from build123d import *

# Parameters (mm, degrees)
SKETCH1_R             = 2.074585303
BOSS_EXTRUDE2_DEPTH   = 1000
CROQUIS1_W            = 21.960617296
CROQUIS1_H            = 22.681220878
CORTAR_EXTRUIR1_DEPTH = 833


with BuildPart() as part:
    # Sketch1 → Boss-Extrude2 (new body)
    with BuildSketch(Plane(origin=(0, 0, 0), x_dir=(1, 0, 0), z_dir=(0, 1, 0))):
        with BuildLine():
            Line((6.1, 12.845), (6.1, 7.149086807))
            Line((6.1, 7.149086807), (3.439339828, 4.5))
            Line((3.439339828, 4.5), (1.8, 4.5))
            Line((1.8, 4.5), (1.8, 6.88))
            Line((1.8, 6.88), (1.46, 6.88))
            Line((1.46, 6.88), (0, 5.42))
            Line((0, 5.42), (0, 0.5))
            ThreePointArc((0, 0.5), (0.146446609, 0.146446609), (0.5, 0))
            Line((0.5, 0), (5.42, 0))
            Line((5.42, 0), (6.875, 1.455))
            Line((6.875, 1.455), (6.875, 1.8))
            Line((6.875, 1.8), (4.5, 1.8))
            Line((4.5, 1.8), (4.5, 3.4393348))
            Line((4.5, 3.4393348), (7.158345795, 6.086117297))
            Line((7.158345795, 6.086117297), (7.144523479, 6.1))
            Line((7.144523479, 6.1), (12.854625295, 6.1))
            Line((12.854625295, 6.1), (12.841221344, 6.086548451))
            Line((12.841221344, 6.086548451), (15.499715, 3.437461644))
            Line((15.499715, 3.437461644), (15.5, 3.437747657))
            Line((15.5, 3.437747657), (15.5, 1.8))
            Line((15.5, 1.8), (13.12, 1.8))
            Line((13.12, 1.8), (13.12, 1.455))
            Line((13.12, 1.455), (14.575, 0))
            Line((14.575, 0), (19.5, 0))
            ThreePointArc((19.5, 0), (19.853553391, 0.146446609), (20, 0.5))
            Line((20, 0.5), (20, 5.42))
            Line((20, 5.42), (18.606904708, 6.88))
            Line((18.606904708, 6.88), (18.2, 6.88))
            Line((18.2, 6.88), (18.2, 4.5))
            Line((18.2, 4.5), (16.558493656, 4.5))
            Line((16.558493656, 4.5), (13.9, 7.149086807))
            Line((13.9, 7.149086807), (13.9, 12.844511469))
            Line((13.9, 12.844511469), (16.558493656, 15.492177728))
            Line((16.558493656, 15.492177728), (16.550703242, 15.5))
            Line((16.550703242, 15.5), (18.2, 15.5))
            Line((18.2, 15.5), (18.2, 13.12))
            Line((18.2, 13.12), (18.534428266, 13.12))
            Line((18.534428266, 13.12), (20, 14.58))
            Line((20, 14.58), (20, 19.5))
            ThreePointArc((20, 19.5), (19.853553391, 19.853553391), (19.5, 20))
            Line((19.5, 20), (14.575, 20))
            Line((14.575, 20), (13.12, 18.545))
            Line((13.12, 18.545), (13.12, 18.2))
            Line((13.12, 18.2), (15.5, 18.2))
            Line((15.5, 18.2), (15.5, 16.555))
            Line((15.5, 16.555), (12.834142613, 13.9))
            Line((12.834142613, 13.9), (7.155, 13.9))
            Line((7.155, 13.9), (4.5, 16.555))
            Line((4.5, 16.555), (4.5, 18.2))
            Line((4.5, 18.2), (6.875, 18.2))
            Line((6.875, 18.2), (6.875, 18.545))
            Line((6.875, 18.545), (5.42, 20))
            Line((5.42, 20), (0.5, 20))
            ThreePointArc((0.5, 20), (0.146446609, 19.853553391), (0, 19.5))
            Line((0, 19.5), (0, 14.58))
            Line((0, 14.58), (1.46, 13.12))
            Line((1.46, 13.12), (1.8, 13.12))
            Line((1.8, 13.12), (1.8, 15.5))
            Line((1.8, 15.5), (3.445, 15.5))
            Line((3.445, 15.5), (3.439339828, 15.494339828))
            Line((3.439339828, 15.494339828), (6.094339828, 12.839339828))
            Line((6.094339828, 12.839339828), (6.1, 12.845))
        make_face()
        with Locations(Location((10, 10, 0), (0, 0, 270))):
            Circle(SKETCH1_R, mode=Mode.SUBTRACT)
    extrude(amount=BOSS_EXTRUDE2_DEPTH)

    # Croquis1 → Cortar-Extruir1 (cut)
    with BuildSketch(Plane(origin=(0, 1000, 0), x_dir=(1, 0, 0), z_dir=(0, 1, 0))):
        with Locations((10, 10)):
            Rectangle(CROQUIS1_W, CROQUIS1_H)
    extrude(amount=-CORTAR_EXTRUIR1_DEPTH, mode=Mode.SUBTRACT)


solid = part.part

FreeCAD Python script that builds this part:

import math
import FreeCAD as App
import Part
import Sketcher

V = App.Vector
Q = App.Units.Quantity


def add_polygon(sketch, points):
    """Adds a closed chain of lines whose ends are joined by coincident constraints."""
    first, n = sketch.GeometryCount, len(points)
    for a, b in zip(points, points[1:] + points[:1]):
        sketch.addGeometry(Part.LineSegment(App.Vector(*a, 0), App.Vector(*b, 0)), False)
    for i in range(n):
        sketch.addConstraint(Sketcher.Constraint("Coincident", first + i, 2, first + (i + 1) % n, 1))

doc = App.newDocument("Part")
body = doc.addObject("PartDesign::Body", "Body")

# Sketch on XZ plane
sketch1 = body.newObject("Sketcher::SketchObject", "Sketch")
sketch1.AttachmentSupport = (doc.getObject("XZ_Plane"), [""])
sketch1.MapMode = "FlatFace"
sketch1.addGeometry([
    Part.LineSegment(V(6.1, -12.845, 0), V(6.1, -7.14909, 0)),  # 0
    Part.LineSegment(V(6.1, -7.14909, 0), V(3.43934, -4.5, 0)),  # 1
    Part.LineSegment(V(3.43934, -4.5, 0), V(1.8, -4.5, 0)),  # 2
    Part.LineSegment(V(1.8, -4.5, 0), V(1.8, -6.88, 0)),  # 3
    Part.LineSegment(V(1.8, -6.88, 0), V(1.46, -6.88, 0)),  # 4
    Part.LineSegment(V(1.46, -6.88, 0), V(0, -5.42, 0)),  # 5
    Part.LineSegment(V(0, -5.42, 0), V(0, -0.5, 0)),  # 6
    Part.ArcOfCircle(Part.Circle(V(0.5, -0.5, 0), V(0, 0, 1), 0.5), math.radians(90), math.radians(180)),  # 7
    Part.LineSegment(V(0.5, 0, 0), V(5.42, 0, 0)),  # 8
    Part.LineSegment(V(5.42, 0, 0), V(6.875, -1.455, 0)),  # 9
    Part.LineSegment(V(6.875, -1.455, 0), V(6.875, -1.8, 0)),  # 10
    Part.LineSegment(V(6.875, -1.8, 0), V(4.5, -1.8, 0)),  # 11
    Part.LineSegment(V(4.5, -1.8, 0), V(4.5, -3.43933, 0)),  # 12
    Part.LineSegment(V(4.5, -3.43933, 0), V(7.15835, -6.08612, 0)),  # 13
    Part.LineSegment(V(7.15835, -6.08612, 0), V(7.14452, -6.1, 0)),  # 14
    Part.LineSegment(V(7.14452, -6.1, 0), V(12.85463, -6.1, 0)),  # 15
    Part.LineSegment(V(12.85463, -6.1, 0), V(12.84122, -6.08655, 0)),  # 16
    Part.LineSegment(V(12.84122, -6.08655, 0), V(15.49972, -3.43746, 0)),  # 17
    Part.LineSegment(V(15.49972, -3.43746, 0), V(15.5, -3.43775, 0)),  # 18
    Part.LineSegment(V(15.5, -3.43775, 0), V(15.5, -1.8, 0)),  # 19
    Part.LineSegment(V(15.5, -1.8, 0), V(13.12, -1.8, 0)),  # 20
    Part.LineSegment(V(13.12, -1.8, 0), V(13.12, -1.455, 0)),  # 21
    Part.LineSegment(V(13.12, -1.455, 0), V(14.575, 0, 0)),  # 22
    Part.LineSegment(V(14.575, 0, 0), V(19.5, 0, 0)),  # 23
    Part.ArcOfCircle(Part.Circle(V(19.5, -0.5, 0), V(0, 0, 1), 0.5), math.radians(0), math.radians(90)),  # 24
    Part.LineSegment(V(20, -0.5, 0), V(20, -5.42, 0)),  # 25
    Part.LineSegment(V(20, -5.42, 0), V(18.6069, -6.88, 0)),  # 26
    Part.LineSegment(V(18.6069, -6.88, 0), V(18.2, -6.88, 0)),  # 27
    Part.LineSegment(V(18.2, -6.88, 0), V(18.2, -4.5, 0)),  # 28
    Part.LineSegment(V(18.2, -4.5, 0), V(16.55849, -4.5, 0)),  # 29
    Part.LineSegment(V(16.55849, -4.5, 0), V(13.9, -7.14909, 0)),  # 30
    Part.LineSegment(V(13.9, -7.14909, 0), V(13.9, -12.84451, 0)),  # 31
    Part.LineSegment(V(13.9, -12.84451, 0), V(16.55849, -15.49218, 0)),  # 32
    Part.LineSegment(V(16.55849, -15.49218, 0), V(16.5507, -15.5, 0)),  # 33
    Part.LineSegment(V(16.5507, -15.5, 0), V(18.2, -15.5, 0)),  # 34
    Part.LineSegment(V(18.2, -15.5, 0), V(18.2, -13.12, 0)),  # 35
    Part.LineSegment(V(18.2, -13.12, 0), V(18.53443, -13.12, 0)),  # 36
    Part.LineSegment(V(18.53443, -13.12, 0), V(20, -14.58, 0)),  # 37
    Part.LineSegment(V(20, -14.58, 0), V(20, -19.5, 0)),  # 38
    Part.ArcOfCircle(Part.Circle(V(19.5, -19.5, 0), V(0, 0, 1), 0.5), math.radians(-90), math.radians(0)),  # 39
    Part.LineSegment(V(19.5, -20, 0), V(14.575, -20, 0)),  # 40
    Part.LineSegment(V(14.575, -20, 0), V(13.12, -18.545, 0)),  # 41
    Part.LineSegment(V(13.12, -18.545, 0), V(13.12, -18.2, 0)),  # 42
    Part.LineSegment(V(13.12, -18.2, 0), V(15.5, -18.2, 0)),  # 43
    Part.LineSegment(V(15.5, -18.2, 0), V(15.5, -16.555, 0)),  # 44
    Part.LineSegment(V(15.5, -16.555, 0), V(12.83414, -13.9, 0)),  # 45
    Part.LineSegment(V(12.83414, -13.9, 0), V(7.155, -13.9, 0)),  # 46
    Part.LineSegment(V(7.155, -13.9, 0), V(4.5, -16.555, 0)),  # 47
    Part.LineSegment(V(4.5, -16.555, 0), V(4.5, -18.2, 0)),  # 48
    Part.LineSegment(V(4.5, -18.2, 0), V(6.875, -18.2, 0)),  # 49
    Part.LineSegment(V(6.875, -18.2, 0), V(6.875, -18.545, 0)),  # 50
    Part.LineSegment(V(6.875, -18.545, 0), V(5.42, -20, 0)),  # 51
    Part.LineSegment(V(5.42, -20, 0), V(0.5, -20, 0)),  # 52
    Part.ArcOfCircle(Part.Circle(V(0.5, -19.5, 0), V(0, 0, 1), 0.5), math.radians(180), math.radians(270)),  # 53
    Part.LineSegment(V(0, -19.5, 0), V(0, -14.58, 0)),  # 54
    Part.LineSegment(V(0, -14.58, 0), V(1.46, -13.12, 0)),  # 55
    Part.LineSegment(V(1.46, -13.12, 0), V(1.8, -13.12, 0)),  # 56
    Part.LineSegment(V(1.8, -13.12, 0), V(1.8, -15.5, 0)),  # 57
    Part.LineSegment(V(1.8, -15.5, 0), V(3.445, -15.5, 0)),  # 58
    Part.LineSegment(V(3.445, -15.5, 0), V(3.43934, -15.49434, 0)),  # 59
    Part.LineSegment(V(3.43934, -15.49434, 0), V(6.09434, -12.83934, 0)),  # 60
    Part.LineSegment(V(6.09434, -12.83934, 0), V(6.1, -12.845, 0)),  # 61
    Part.Circle(V(10, -10, 0), V(0, 0, 1), 2.07459),  # 62
], False)
sketch1.addConstraint([
    Sketcher.Constraint("Coincident", 0, 2, 1, 1),
    Sketcher.Constraint("Coincident", 1, 2, 2, 1),
    Sketcher.Constraint("Coincident", 2, 2, 3, 1),
    Sketcher.Constraint("Coincident", 3, 2, 4, 1),
    Sketcher.Constraint("Coincident", 4, 2, 5, 1),
    Sketcher.Constraint("Coincident", 5, 2, 6, 1),
    Sketcher.Constraint("Tangent", 6, 2, 7, 2),
    Sketcher.Constraint("Tangent", 7, 1, 8, 1),
    Sketcher.Constraint("Coincident", 8, 2, 9, 1),
    Sketcher.Constraint("Coincident", 9, 2, 10, 1),
    Sketcher.Constraint("Coincident", 10, 2, 11, 1),
    Sketcher.Constraint("Coincident", 11, 2, 12, 1),
    Sketcher.Constraint("Coincident", 12, 2, 13, 1),
    Sketcher.Constraint("Coincident", 13, 2, 14, 1),
    Sketcher.Constraint("Coincident", 14, 2, 15, 1),
    Sketcher.Constraint("Coincident", 15, 2, 16, 1),
    Sketcher.Constraint("Coincident", 16, 2, 17, 1),
    Sketcher.Constraint("Coincident", 17, 2, 18, 1),
    Sketcher.Constraint("Coincident", 18, 2, 19, 1),
    Sketcher.Constraint("Coincident", 19, 2, 20, 1),
    Sketcher.Constraint("Coincident", 20, 2, 21, 1),
    Sketcher.Constraint("Coincident", 21, 2, 22, 1),
    Sketcher.Constraint("Coincident", 22, 2, 23, 1),
    Sketcher.Constraint("Tangent", 23, 2, 24, 2),
    Sketcher.Constraint("Tangent", 24, 1, 25, 1),
    Sketcher.Constraint("Coincident", 25, 2, 26, 1),
    Sketcher.Constraint("Coincident", 26, 2, 27, 1),
    Sketcher.Constraint("Coincident", 27, 2, 28, 1),
    Sketcher.Constraint("Coincident", 28, 2, 29, 1),
    Sketcher.Constraint("Coincident", 29, 2, 30, 1),
    Sketcher.Constraint("Coincident", 30, 2, 31, 1),
    Sketcher.Constraint("Coincident", 31, 2, 32, 1),
    Sketcher.Constraint("Coincident", 32, 2, 33, 1),
    Sketcher.Constraint("Coincident", 33, 2, 34, 1),
    Sketcher.Constraint("Coincident", 34, 2, 35, 1),
    Sketcher.Constraint("Coincident", 35, 2, 36, 1),
    Sketcher.Constraint("Coincident", 36, 2, 37, 1),
    Sketcher.Constraint("Coincident", 37, 2, 38, 1),
    Sketcher.Constraint("Tangent", 38, 2, 39, 2),
    Sketcher.Constraint("Tangent", 39, 1, 40, 1),
    Sketcher.Constraint("Coincident", 40, 2, 41, 1),
    Sketcher.Constraint("Coincident", 41, 2, 42, 1),
    Sketcher.Constraint("Coincident", 42, 2, 43, 1),
    Sketcher.Constraint("Coincident", 43, 2, 44, 1),
    Sketcher.Constraint("Coincident", 44, 2, 45, 1),
    Sketcher.Constraint("Coincident", 45, 2, 46, 1),
    Sketcher.Constraint("Coincident", 46, 2, 47, 1),
    Sketcher.Constraint("Coincident", 47, 2, 48, 1),
    Sketcher.Constraint("Coincident", 48, 2, 49, 1),
    Sketcher.Constraint("Coincident", 49, 2, 50, 1),
    Sketcher.Constraint("Coincident", 50, 2, 51, 1),
    Sketcher.Constraint("Coincident", 51, 2, 52, 1),
    Sketcher.Constraint("Tangent", 52, 2, 53, 2),
    Sketcher.Constraint("Tangent", 53, 1, 54, 1),
    Sketcher.Constraint("Coincident", 54, 2, 55, 1),
    Sketcher.Constraint("Coincident", 55, 2, 56, 1),
    Sketcher.Constraint("Coincident", 56, 2, 57, 1),
    Sketcher.Constraint("Coincident", 57, 2, 58, 1),
    Sketcher.Constraint("Coincident", 58, 2, 59, 1),
    Sketcher.Constraint("Coincident", 59, 2, 60, 1),
    Sketcher.Constraint("Coincident", 60, 2, 61, 1),
    Sketcher.Constraint("Coincident", 61, 2, 0, 1),
    Sketcher.Constraint("Vertical", 0),
    Sketcher.Constraint("Horizontal", 2),
    Sketcher.Constraint("Vertical", 3),
    Sketcher.Constraint("Horizontal", 4),
    Sketcher.Constraint("Vertical", 6),
    Sketcher.Constraint("Horizontal", 8),
    Sketcher.Constraint("Vertical", 10),
    Sketcher.Constraint("Horizontal", 11),
    Sketcher.Constraint("Vertical", 12),
    Sketcher.Constraint("Horizontal", 15),
    Sketcher.Constraint("Vertical", 19),
    Sketcher.Constraint("Horizontal", 20),
    Sketcher.Constraint("Vertical", 21),
    Sketcher.Constraint("Horizontal", 23),
    Sketcher.Constraint("Vertical", 25),
    Sketcher.Constraint("Horizontal", 27),
    Sketcher.Constraint("Vertical", 28),
    Sketcher.Constraint("Horizontal", 29),
    Sketcher.Constraint("Vertical", 31),
    Sketcher.Constraint("Horizontal", 34),
    Sketcher.Constraint("Vertical", 35),
    Sketcher.Constraint("Horizontal", 36),
    Sketcher.Constraint("Vertical", 38),
    Sketcher.Constraint("Horizontal", 40),
    Sketcher.Constraint("Vertical", 42),
    Sketcher.Constraint("Horizontal", 43),
    Sketcher.Constraint("Vertical", 44),
    Sketcher.Constraint("Horizontal", 46),
    Sketcher.Constraint("Vertical", 48),
    Sketcher.Constraint("Horizontal", 49),
    Sketcher.Constraint("Vertical", 50),
    Sketcher.Constraint("Horizontal", 52),
    Sketcher.Constraint("Vertical", 54),
    Sketcher.Constraint("Horizontal", 56),
    Sketcher.Constraint("Vertical", 57),
    Sketcher.Constraint("Horizontal", 58),
    Sketcher.Constraint("Equal", 7, 24),
    Sketcher.Constraint("Equal", 24, 39),
    Sketcher.Constraint("Equal", 39, 53),
    Sketcher.Constraint("PointOnObject", 5, 2, -2),
    Sketcher.Constraint("PointOnObject", 7, 1, -1),
    Sketcher.Constraint("PointOnObject", 22, 2, -1),
    Sketcher.Constraint("PointOnObject", 53, 1, -2),
    Sketcher.Constraint("Parallel", 5, 9),
    Sketcher.Constraint("Parallel", 1, 13),
    Sketcher.Constraint("Perpendicular", 13, 14),
    Sketcher.Constraint("Perpendicular", 16, 17),
    Sketcher.Constraint("Perpendicular", 17, 18),
    Sketcher.Constraint("Perpendicular", 9, 22),
    Sketcher.Constraint("Parallel", 17, 30),
    Sketcher.Constraint("Perpendicular", 32, 33),
    Sketcher.Constraint("Perpendicular", 22, 41),
    Sketcher.Constraint("Perpendicular", 33, 45),
    Sketcher.Constraint("Perpendicular", 41, 47),
    Sketcher.Constraint("Parallel", 47, 51),
    Sketcher.Constraint("Parallel", 51, 55),
    Sketcher.Constraint("Perpendicular", 55, 59),
    Sketcher.Constraint("Parallel", 55, 60),
    Sketcher.Constraint("Perpendicular", 60, 61),
    Sketcher.Constraint("Horizontal", 39, 3, 53, 3),
    Sketcher.Constraint("Horizontal", 11, 2, 19, 2),
    Sketcher.Constraint("Horizontal", 9, 2, 21, 2),
    Sketcher.Constraint("Horizontal", 5, 2, 25, 2),
    Sketcher.Constraint("Horizontal", 4, 2, 26, 2),
    Sketcher.Constraint("Horizontal", 2, 2, 28, 2),
    Sketcher.Constraint("Horizontal", 0, 2, 30, 2),
    Sketcher.Constraint("Horizontal", 44, 2, 47, 2),
    Sketcher.Constraint("Horizontal", 43, 2, 48, 2),
    Sketcher.Constraint("Horizontal", 41, 2, 50, 2),
    Sketcher.Constraint("Horizontal", 37, 2, 54, 2),
    Sketcher.Constraint("Horizontal", 36, 2, 55, 2),
    Sketcher.Constraint("Horizontal", 34, 2, 57, 2),
    Sketcher.Constraint("Vertical", 24, 3, 39, 3),
    Sketcher.Constraint("Vertical", 29, 2, 32, 2),
    Sketcher.Constraint("Vertical", 28, 2, 34, 2),
    Sketcher.Constraint("Vertical", 22, 2, 40, 2),
    Sketcher.Constraint("Vertical", 21, 2, 41, 2),
    Sketcher.Constraint("Vertical", 19, 2, 43, 2),
    Sketcher.Constraint("Vertical", 12, 2, 47, 2),
    Sketcher.Constraint("Vertical", 10, 2, 49, 2),
    Sketcher.Constraint("Vertical", 8, 2, 51, 2),
    Sketcher.Constraint("Vertical", 4, 2, 55, 2),
    Sketcher.Constraint("Vertical", 3, 2, 56, 2),
    Sketcher.Constraint("Vertical", 1, 2, 59, 2),
    Sketcher.Constraint("Equal", 43, 3),
    Sketcher.Constraint("Equal", 52, 6),
    Sketcher.Constraint("Equal", 28, 35),
    Sketcher.Constraint("Equal", 25, 38),
    Sketcher.Constraint("Equal", 21, 42),
    Sketcher.Constraint("Equal", 58, 44),
    Sketcher.Constraint("Equal", 17, 30),
    Sketcher.Constraint("Equal", 47, 60),
    Sketcher.Constraint("Equal", 59, 61),
    Sketcher.Constraint("Radius", 7, Q("0.5 mm")),
    Sketcher.Constraint("DistanceX", -1, 1, 62, 3, Q("10 mm")),
    Sketcher.Constraint("DistanceY", 62, 3, -1, 1, Q("10 mm")),
    Sketcher.Constraint("DistanceX", -1, 1, 24, 1, Q("20 mm")),
    Sketcher.Constraint("DistanceY", 39, 1, -1, 1, Q("20 mm")),
    Sketcher.Constraint("DistanceX", 4, 2, 4, 1, Q("0.34 mm")),
    Sketcher.Constraint("DistanceX", 8, 1, 8, 2, Q("4.92 mm")),
    Sketcher.Constraint("DistanceX", 20, 2, 20, 1, Q("2.38 mm")),
    Sketcher.Constraint("DistanceX", -1, 1, 0, 2, Q("6.1 mm")),
    Sketcher.Constraint("DistanceY", 1, 2, -1, 1, Q("4.5 mm")),
    Sketcher.Constraint("DistanceY", 10, 2, -1, 1, Q("1.8 mm")),
    Sketcher.Constraint("DistanceX", -1, 1, 11, 2, Q("4.5 mm")),
    Sketcher.Constraint("DistanceY", 14, 2, -1, 1, Q("6.1 mm")),
    Sketcher.Constraint("DistanceX", -1, 1, 18, 2, Q("15.5 mm")),
    Sketcher.Constraint("DistanceX", -1, 1, 27, 2, Q("18.2 mm")),
    Sketcher.Constraint("DistanceX", -1, 1, 30, 2, Q("13.9 mm")),
    Sketcher.Constraint("Diameter", 62, Q("4.149171 mm")),
    Sketcher.Constraint("DistanceX", 11, 2, 11, 1, Q("2.375 mm")),
    Sketcher.Constraint("DistanceX", 58, 1, 58, 2, Q("1.645 mm")),
    Sketcher.Constraint("DistanceX", 15, 1, 15, 2, Q("5.710102 mm")),
    Sketcher.Constraint("Distance", 13, Q("3.751301 mm")),
    Sketcher.Constraint("DistanceX", 2, 2, 2, 1, Q("1.63934 mm")),
    Sketcher.Constraint("DistanceX", 36, 1, 36, 2, Q("0.334428 mm")),
    Sketcher.Constraint("Distance", 14, Q("0.01959 mm")),
    Sketcher.Constraint("Distance", 16, Q("0.01899 mm")),
    Sketcher.Constraint("Distance", 32, Q("3.752029 mm")),
    Sketcher.Constraint("Distance", 33, Q("0.01104 mm")),
    Sketcher.Constraint("DistanceX", 27, 2, 27, 1, Q("0.406905 mm")),
    Sketcher.Constraint("DistanceX", 29, 2, 29, 1, Q("1.641506 mm")),
    Sketcher.Constraint("DistanceY", 0, 1, 0, 2, Q("5.695913 mm")),
])
pad1 = body.newObject("PartDesign::Pad", "Pad")
pad1.Profile = sketch1
pad1.Length = 1000
pad1.Reversed = True

# Sketch on XZ plane
sketch2 = body.newObject("Sketcher::SketchObject", "Sketch001")
sketch2.AttachmentSupport = (doc.getObject("XZ_Plane"), [""])
sketch2.MapMode = "FlatFace"
sketch2.AttachmentOffset = App.Placement(V(0, 0, -1000), App.Rotation())
add_polygon(sketch2, [(-1, -21), (-1, 1), (21, 1), (21, -21)])  # lines 0-3
sketch2.addConstraint([
    Sketcher.Constraint("Vertical", 0),
    Sketcher.Constraint("Horizontal", 1),
    Sketcher.Constraint("Vertical", 2),
    Sketcher.Constraint("Horizontal", 3),
    Sketcher.Constraint("DistanceY", 0, 1, 0, 2, Q("22.681221 mm")),
    Sketcher.Constraint("DistanceX", 1, 1, 1, 2, Q("21.960617 mm")),
    Sketcher.Constraint("DistanceX", 0, 2, -1, 1, Q("0.980309 mm")),
    Sketcher.Constraint("DistanceY", -1, 1, 0, 2, Q("1.34061 mm")),
])
pocket1 = body.newObject("PartDesign::Pocket", "Pocket")
pocket1.Profile = sketch2
pocket1.Length = 833
pocket1.Reversed = True

doc.recompute()
